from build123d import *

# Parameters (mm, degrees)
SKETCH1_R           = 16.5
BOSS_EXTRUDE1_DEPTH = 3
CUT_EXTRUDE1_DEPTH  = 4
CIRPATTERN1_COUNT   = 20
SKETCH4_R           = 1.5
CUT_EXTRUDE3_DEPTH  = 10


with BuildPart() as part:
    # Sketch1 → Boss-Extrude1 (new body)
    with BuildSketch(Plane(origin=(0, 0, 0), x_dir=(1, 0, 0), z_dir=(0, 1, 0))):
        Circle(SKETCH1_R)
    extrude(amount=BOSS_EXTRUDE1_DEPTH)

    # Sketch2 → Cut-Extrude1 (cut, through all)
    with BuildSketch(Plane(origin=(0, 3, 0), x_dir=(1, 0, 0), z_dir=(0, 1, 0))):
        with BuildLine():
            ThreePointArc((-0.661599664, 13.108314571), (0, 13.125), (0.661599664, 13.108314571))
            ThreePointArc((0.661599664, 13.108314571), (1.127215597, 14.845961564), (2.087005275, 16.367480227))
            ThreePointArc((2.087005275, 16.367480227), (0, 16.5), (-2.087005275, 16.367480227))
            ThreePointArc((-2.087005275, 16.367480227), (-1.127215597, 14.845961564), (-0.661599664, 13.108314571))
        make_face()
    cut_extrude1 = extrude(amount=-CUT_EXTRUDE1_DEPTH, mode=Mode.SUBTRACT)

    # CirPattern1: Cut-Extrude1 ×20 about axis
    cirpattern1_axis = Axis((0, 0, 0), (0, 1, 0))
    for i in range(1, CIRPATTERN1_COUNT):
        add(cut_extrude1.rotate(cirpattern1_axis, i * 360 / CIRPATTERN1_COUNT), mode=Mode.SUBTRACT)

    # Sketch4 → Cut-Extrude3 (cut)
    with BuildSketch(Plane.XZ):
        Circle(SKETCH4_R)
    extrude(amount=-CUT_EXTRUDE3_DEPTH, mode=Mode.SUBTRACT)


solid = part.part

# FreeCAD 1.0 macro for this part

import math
import FreeCAD as App
import Part
import Sketcher
from FreeCAD import Vector
Q = App.Units.Quantity

doc = App.newDocument("Part")
body = doc.addObject("PartDesign::Body", "Body")

sketch1 = body.newObject("Sketcher::SketchObject", "Sketch")
sketch1.AttachmentSupport = (doc.getObject("XZ_Plane"), [""])
sketch1.MapMode = "FlatFace"
sketch1.addGeometry(Part.Circle(Vector(0, 0, 0), Vector(0, 0, 1), 16.5), False)
sketch1.addConstraint([
    Sketcher.Constraint("Coincident", 0, 3, -1, 1),
    Sketcher.Constraint("Diameter", 0, Q("33 mm")),
])
pad1 = body.newObject("PartDesign::Pad", "Pad")
pad1.Profile = sketch1
pad1.Length = 3
pad1.Reversed = True

sketch2 = body.newObject("Sketcher::SketchObject", "Sketch001")
sketch2.AttachmentSupport = (doc.getObject("XZ_Plane"), [""])
sketch2.MapMode = "FlatFace"
sketch2.AttachmentOffset = App.Placement(Vector(0, 0, -3), App.Rotation())
sketch2.addGeometry([
    Part.ArcOfCircle(Part.Circle(Vector(0, 0, 0), Vector(0, 0, 1), 13.125), math.radians(-92.889367), math.radians(-87.110633)),
    Part.ArcOfCircle(Part.Circle(Vector(6.624456, -12.441727, 0), Vector(0, 0, 1), 6), math.radians(-173.621392), math.radians(-139.134)),
    Part.ArcOfCircle(Part.Circle(Vector(0, 0, 0), Vector(0, 0, 1), 16.5), math.radians(-97.26653), math.radians(-82.73347)),
    Part.ArcOfCircle(Part.Circle(Vector(-6.624456, -12.441727, 0), Vector(0, 0, 1), 6), math.radians(-40.866), math.radians(-6.378608)),
], False)
sketch2.addConstraint([
    Sketcher.Constraint("Coincident", 0, 2, 1, 1),
    Sketcher.Constraint("Coincident", 1, 2, 2, 2),
    Sketcher.Constraint("Coincident", 2, 1, 3, 1),
    Sketcher.Constraint("Coincident", 3, 2, 0, 1),
    Sketcher.Constraint("Coincident", 0, 3, -1, 1),
    Sketcher.Constraint("Coincident", 2, 3, -1, 1),
    Sketcher.Constraint("Equal", 1, 3),
    Sketcher.Constraint("Symmetric", 1, 3, 3, 3, -2),
    Sketcher.Constraint("Radius", 1, Q("6 mm")),
    Sketcher.Constraint("Radius", 2, Q("16.5 mm")),
    Sketcher.Constraint("Radius", 0, Q("13.125 mm")),
    Sketcher.Constraint("DistanceX", -1, 1, 0, 2, Q("0.6616 mm")),
    Sketcher.Constraint("DistanceY", 1, 2, -1, 1, Q("16.36748 mm")),
])
pocket1 = body.newObject("PartDesign::Pocket", "Pocket")
pocket1.Profile = sketch2
pocket1.Type = "ThroughAll"
pocket1.Reversed = True
doc.recompute()

polarpattern = body.newObject("PartDesign::PolarPattern", "PolarPattern")
polarpattern.Originals = [pocket1]
polarpattern.Axis = (doc.getObject("Y_Axis"), [""])
polarpattern.Angle = 360
polarpattern.Occurrences = 20
body.Tip = polarpattern

sketch3 = body.newObject("Sketcher::SketchObject", "Sketch002")
sketch3.AttachmentSupport = (doc.getObject("XZ_Plane"), [""])
sketch3.MapMode = "FlatFace"
sketch3.addGeometry(Part.Circle(Vector(0, 0, 0), Vector(0, 0, 1), 1.5), False)
sketch3.addConstraint([
    Sketcher.Constraint("Coincident", 0, 3, -1, 1),
    Sketcher.Constraint("Diameter", 0, Q("3 mm")),
])
pocket2 = body.newObject("PartDesign::Pocket", "Pocket001")
pocket2.Profile = sketch3
pocket2.Length = 10

doc.recompute()
